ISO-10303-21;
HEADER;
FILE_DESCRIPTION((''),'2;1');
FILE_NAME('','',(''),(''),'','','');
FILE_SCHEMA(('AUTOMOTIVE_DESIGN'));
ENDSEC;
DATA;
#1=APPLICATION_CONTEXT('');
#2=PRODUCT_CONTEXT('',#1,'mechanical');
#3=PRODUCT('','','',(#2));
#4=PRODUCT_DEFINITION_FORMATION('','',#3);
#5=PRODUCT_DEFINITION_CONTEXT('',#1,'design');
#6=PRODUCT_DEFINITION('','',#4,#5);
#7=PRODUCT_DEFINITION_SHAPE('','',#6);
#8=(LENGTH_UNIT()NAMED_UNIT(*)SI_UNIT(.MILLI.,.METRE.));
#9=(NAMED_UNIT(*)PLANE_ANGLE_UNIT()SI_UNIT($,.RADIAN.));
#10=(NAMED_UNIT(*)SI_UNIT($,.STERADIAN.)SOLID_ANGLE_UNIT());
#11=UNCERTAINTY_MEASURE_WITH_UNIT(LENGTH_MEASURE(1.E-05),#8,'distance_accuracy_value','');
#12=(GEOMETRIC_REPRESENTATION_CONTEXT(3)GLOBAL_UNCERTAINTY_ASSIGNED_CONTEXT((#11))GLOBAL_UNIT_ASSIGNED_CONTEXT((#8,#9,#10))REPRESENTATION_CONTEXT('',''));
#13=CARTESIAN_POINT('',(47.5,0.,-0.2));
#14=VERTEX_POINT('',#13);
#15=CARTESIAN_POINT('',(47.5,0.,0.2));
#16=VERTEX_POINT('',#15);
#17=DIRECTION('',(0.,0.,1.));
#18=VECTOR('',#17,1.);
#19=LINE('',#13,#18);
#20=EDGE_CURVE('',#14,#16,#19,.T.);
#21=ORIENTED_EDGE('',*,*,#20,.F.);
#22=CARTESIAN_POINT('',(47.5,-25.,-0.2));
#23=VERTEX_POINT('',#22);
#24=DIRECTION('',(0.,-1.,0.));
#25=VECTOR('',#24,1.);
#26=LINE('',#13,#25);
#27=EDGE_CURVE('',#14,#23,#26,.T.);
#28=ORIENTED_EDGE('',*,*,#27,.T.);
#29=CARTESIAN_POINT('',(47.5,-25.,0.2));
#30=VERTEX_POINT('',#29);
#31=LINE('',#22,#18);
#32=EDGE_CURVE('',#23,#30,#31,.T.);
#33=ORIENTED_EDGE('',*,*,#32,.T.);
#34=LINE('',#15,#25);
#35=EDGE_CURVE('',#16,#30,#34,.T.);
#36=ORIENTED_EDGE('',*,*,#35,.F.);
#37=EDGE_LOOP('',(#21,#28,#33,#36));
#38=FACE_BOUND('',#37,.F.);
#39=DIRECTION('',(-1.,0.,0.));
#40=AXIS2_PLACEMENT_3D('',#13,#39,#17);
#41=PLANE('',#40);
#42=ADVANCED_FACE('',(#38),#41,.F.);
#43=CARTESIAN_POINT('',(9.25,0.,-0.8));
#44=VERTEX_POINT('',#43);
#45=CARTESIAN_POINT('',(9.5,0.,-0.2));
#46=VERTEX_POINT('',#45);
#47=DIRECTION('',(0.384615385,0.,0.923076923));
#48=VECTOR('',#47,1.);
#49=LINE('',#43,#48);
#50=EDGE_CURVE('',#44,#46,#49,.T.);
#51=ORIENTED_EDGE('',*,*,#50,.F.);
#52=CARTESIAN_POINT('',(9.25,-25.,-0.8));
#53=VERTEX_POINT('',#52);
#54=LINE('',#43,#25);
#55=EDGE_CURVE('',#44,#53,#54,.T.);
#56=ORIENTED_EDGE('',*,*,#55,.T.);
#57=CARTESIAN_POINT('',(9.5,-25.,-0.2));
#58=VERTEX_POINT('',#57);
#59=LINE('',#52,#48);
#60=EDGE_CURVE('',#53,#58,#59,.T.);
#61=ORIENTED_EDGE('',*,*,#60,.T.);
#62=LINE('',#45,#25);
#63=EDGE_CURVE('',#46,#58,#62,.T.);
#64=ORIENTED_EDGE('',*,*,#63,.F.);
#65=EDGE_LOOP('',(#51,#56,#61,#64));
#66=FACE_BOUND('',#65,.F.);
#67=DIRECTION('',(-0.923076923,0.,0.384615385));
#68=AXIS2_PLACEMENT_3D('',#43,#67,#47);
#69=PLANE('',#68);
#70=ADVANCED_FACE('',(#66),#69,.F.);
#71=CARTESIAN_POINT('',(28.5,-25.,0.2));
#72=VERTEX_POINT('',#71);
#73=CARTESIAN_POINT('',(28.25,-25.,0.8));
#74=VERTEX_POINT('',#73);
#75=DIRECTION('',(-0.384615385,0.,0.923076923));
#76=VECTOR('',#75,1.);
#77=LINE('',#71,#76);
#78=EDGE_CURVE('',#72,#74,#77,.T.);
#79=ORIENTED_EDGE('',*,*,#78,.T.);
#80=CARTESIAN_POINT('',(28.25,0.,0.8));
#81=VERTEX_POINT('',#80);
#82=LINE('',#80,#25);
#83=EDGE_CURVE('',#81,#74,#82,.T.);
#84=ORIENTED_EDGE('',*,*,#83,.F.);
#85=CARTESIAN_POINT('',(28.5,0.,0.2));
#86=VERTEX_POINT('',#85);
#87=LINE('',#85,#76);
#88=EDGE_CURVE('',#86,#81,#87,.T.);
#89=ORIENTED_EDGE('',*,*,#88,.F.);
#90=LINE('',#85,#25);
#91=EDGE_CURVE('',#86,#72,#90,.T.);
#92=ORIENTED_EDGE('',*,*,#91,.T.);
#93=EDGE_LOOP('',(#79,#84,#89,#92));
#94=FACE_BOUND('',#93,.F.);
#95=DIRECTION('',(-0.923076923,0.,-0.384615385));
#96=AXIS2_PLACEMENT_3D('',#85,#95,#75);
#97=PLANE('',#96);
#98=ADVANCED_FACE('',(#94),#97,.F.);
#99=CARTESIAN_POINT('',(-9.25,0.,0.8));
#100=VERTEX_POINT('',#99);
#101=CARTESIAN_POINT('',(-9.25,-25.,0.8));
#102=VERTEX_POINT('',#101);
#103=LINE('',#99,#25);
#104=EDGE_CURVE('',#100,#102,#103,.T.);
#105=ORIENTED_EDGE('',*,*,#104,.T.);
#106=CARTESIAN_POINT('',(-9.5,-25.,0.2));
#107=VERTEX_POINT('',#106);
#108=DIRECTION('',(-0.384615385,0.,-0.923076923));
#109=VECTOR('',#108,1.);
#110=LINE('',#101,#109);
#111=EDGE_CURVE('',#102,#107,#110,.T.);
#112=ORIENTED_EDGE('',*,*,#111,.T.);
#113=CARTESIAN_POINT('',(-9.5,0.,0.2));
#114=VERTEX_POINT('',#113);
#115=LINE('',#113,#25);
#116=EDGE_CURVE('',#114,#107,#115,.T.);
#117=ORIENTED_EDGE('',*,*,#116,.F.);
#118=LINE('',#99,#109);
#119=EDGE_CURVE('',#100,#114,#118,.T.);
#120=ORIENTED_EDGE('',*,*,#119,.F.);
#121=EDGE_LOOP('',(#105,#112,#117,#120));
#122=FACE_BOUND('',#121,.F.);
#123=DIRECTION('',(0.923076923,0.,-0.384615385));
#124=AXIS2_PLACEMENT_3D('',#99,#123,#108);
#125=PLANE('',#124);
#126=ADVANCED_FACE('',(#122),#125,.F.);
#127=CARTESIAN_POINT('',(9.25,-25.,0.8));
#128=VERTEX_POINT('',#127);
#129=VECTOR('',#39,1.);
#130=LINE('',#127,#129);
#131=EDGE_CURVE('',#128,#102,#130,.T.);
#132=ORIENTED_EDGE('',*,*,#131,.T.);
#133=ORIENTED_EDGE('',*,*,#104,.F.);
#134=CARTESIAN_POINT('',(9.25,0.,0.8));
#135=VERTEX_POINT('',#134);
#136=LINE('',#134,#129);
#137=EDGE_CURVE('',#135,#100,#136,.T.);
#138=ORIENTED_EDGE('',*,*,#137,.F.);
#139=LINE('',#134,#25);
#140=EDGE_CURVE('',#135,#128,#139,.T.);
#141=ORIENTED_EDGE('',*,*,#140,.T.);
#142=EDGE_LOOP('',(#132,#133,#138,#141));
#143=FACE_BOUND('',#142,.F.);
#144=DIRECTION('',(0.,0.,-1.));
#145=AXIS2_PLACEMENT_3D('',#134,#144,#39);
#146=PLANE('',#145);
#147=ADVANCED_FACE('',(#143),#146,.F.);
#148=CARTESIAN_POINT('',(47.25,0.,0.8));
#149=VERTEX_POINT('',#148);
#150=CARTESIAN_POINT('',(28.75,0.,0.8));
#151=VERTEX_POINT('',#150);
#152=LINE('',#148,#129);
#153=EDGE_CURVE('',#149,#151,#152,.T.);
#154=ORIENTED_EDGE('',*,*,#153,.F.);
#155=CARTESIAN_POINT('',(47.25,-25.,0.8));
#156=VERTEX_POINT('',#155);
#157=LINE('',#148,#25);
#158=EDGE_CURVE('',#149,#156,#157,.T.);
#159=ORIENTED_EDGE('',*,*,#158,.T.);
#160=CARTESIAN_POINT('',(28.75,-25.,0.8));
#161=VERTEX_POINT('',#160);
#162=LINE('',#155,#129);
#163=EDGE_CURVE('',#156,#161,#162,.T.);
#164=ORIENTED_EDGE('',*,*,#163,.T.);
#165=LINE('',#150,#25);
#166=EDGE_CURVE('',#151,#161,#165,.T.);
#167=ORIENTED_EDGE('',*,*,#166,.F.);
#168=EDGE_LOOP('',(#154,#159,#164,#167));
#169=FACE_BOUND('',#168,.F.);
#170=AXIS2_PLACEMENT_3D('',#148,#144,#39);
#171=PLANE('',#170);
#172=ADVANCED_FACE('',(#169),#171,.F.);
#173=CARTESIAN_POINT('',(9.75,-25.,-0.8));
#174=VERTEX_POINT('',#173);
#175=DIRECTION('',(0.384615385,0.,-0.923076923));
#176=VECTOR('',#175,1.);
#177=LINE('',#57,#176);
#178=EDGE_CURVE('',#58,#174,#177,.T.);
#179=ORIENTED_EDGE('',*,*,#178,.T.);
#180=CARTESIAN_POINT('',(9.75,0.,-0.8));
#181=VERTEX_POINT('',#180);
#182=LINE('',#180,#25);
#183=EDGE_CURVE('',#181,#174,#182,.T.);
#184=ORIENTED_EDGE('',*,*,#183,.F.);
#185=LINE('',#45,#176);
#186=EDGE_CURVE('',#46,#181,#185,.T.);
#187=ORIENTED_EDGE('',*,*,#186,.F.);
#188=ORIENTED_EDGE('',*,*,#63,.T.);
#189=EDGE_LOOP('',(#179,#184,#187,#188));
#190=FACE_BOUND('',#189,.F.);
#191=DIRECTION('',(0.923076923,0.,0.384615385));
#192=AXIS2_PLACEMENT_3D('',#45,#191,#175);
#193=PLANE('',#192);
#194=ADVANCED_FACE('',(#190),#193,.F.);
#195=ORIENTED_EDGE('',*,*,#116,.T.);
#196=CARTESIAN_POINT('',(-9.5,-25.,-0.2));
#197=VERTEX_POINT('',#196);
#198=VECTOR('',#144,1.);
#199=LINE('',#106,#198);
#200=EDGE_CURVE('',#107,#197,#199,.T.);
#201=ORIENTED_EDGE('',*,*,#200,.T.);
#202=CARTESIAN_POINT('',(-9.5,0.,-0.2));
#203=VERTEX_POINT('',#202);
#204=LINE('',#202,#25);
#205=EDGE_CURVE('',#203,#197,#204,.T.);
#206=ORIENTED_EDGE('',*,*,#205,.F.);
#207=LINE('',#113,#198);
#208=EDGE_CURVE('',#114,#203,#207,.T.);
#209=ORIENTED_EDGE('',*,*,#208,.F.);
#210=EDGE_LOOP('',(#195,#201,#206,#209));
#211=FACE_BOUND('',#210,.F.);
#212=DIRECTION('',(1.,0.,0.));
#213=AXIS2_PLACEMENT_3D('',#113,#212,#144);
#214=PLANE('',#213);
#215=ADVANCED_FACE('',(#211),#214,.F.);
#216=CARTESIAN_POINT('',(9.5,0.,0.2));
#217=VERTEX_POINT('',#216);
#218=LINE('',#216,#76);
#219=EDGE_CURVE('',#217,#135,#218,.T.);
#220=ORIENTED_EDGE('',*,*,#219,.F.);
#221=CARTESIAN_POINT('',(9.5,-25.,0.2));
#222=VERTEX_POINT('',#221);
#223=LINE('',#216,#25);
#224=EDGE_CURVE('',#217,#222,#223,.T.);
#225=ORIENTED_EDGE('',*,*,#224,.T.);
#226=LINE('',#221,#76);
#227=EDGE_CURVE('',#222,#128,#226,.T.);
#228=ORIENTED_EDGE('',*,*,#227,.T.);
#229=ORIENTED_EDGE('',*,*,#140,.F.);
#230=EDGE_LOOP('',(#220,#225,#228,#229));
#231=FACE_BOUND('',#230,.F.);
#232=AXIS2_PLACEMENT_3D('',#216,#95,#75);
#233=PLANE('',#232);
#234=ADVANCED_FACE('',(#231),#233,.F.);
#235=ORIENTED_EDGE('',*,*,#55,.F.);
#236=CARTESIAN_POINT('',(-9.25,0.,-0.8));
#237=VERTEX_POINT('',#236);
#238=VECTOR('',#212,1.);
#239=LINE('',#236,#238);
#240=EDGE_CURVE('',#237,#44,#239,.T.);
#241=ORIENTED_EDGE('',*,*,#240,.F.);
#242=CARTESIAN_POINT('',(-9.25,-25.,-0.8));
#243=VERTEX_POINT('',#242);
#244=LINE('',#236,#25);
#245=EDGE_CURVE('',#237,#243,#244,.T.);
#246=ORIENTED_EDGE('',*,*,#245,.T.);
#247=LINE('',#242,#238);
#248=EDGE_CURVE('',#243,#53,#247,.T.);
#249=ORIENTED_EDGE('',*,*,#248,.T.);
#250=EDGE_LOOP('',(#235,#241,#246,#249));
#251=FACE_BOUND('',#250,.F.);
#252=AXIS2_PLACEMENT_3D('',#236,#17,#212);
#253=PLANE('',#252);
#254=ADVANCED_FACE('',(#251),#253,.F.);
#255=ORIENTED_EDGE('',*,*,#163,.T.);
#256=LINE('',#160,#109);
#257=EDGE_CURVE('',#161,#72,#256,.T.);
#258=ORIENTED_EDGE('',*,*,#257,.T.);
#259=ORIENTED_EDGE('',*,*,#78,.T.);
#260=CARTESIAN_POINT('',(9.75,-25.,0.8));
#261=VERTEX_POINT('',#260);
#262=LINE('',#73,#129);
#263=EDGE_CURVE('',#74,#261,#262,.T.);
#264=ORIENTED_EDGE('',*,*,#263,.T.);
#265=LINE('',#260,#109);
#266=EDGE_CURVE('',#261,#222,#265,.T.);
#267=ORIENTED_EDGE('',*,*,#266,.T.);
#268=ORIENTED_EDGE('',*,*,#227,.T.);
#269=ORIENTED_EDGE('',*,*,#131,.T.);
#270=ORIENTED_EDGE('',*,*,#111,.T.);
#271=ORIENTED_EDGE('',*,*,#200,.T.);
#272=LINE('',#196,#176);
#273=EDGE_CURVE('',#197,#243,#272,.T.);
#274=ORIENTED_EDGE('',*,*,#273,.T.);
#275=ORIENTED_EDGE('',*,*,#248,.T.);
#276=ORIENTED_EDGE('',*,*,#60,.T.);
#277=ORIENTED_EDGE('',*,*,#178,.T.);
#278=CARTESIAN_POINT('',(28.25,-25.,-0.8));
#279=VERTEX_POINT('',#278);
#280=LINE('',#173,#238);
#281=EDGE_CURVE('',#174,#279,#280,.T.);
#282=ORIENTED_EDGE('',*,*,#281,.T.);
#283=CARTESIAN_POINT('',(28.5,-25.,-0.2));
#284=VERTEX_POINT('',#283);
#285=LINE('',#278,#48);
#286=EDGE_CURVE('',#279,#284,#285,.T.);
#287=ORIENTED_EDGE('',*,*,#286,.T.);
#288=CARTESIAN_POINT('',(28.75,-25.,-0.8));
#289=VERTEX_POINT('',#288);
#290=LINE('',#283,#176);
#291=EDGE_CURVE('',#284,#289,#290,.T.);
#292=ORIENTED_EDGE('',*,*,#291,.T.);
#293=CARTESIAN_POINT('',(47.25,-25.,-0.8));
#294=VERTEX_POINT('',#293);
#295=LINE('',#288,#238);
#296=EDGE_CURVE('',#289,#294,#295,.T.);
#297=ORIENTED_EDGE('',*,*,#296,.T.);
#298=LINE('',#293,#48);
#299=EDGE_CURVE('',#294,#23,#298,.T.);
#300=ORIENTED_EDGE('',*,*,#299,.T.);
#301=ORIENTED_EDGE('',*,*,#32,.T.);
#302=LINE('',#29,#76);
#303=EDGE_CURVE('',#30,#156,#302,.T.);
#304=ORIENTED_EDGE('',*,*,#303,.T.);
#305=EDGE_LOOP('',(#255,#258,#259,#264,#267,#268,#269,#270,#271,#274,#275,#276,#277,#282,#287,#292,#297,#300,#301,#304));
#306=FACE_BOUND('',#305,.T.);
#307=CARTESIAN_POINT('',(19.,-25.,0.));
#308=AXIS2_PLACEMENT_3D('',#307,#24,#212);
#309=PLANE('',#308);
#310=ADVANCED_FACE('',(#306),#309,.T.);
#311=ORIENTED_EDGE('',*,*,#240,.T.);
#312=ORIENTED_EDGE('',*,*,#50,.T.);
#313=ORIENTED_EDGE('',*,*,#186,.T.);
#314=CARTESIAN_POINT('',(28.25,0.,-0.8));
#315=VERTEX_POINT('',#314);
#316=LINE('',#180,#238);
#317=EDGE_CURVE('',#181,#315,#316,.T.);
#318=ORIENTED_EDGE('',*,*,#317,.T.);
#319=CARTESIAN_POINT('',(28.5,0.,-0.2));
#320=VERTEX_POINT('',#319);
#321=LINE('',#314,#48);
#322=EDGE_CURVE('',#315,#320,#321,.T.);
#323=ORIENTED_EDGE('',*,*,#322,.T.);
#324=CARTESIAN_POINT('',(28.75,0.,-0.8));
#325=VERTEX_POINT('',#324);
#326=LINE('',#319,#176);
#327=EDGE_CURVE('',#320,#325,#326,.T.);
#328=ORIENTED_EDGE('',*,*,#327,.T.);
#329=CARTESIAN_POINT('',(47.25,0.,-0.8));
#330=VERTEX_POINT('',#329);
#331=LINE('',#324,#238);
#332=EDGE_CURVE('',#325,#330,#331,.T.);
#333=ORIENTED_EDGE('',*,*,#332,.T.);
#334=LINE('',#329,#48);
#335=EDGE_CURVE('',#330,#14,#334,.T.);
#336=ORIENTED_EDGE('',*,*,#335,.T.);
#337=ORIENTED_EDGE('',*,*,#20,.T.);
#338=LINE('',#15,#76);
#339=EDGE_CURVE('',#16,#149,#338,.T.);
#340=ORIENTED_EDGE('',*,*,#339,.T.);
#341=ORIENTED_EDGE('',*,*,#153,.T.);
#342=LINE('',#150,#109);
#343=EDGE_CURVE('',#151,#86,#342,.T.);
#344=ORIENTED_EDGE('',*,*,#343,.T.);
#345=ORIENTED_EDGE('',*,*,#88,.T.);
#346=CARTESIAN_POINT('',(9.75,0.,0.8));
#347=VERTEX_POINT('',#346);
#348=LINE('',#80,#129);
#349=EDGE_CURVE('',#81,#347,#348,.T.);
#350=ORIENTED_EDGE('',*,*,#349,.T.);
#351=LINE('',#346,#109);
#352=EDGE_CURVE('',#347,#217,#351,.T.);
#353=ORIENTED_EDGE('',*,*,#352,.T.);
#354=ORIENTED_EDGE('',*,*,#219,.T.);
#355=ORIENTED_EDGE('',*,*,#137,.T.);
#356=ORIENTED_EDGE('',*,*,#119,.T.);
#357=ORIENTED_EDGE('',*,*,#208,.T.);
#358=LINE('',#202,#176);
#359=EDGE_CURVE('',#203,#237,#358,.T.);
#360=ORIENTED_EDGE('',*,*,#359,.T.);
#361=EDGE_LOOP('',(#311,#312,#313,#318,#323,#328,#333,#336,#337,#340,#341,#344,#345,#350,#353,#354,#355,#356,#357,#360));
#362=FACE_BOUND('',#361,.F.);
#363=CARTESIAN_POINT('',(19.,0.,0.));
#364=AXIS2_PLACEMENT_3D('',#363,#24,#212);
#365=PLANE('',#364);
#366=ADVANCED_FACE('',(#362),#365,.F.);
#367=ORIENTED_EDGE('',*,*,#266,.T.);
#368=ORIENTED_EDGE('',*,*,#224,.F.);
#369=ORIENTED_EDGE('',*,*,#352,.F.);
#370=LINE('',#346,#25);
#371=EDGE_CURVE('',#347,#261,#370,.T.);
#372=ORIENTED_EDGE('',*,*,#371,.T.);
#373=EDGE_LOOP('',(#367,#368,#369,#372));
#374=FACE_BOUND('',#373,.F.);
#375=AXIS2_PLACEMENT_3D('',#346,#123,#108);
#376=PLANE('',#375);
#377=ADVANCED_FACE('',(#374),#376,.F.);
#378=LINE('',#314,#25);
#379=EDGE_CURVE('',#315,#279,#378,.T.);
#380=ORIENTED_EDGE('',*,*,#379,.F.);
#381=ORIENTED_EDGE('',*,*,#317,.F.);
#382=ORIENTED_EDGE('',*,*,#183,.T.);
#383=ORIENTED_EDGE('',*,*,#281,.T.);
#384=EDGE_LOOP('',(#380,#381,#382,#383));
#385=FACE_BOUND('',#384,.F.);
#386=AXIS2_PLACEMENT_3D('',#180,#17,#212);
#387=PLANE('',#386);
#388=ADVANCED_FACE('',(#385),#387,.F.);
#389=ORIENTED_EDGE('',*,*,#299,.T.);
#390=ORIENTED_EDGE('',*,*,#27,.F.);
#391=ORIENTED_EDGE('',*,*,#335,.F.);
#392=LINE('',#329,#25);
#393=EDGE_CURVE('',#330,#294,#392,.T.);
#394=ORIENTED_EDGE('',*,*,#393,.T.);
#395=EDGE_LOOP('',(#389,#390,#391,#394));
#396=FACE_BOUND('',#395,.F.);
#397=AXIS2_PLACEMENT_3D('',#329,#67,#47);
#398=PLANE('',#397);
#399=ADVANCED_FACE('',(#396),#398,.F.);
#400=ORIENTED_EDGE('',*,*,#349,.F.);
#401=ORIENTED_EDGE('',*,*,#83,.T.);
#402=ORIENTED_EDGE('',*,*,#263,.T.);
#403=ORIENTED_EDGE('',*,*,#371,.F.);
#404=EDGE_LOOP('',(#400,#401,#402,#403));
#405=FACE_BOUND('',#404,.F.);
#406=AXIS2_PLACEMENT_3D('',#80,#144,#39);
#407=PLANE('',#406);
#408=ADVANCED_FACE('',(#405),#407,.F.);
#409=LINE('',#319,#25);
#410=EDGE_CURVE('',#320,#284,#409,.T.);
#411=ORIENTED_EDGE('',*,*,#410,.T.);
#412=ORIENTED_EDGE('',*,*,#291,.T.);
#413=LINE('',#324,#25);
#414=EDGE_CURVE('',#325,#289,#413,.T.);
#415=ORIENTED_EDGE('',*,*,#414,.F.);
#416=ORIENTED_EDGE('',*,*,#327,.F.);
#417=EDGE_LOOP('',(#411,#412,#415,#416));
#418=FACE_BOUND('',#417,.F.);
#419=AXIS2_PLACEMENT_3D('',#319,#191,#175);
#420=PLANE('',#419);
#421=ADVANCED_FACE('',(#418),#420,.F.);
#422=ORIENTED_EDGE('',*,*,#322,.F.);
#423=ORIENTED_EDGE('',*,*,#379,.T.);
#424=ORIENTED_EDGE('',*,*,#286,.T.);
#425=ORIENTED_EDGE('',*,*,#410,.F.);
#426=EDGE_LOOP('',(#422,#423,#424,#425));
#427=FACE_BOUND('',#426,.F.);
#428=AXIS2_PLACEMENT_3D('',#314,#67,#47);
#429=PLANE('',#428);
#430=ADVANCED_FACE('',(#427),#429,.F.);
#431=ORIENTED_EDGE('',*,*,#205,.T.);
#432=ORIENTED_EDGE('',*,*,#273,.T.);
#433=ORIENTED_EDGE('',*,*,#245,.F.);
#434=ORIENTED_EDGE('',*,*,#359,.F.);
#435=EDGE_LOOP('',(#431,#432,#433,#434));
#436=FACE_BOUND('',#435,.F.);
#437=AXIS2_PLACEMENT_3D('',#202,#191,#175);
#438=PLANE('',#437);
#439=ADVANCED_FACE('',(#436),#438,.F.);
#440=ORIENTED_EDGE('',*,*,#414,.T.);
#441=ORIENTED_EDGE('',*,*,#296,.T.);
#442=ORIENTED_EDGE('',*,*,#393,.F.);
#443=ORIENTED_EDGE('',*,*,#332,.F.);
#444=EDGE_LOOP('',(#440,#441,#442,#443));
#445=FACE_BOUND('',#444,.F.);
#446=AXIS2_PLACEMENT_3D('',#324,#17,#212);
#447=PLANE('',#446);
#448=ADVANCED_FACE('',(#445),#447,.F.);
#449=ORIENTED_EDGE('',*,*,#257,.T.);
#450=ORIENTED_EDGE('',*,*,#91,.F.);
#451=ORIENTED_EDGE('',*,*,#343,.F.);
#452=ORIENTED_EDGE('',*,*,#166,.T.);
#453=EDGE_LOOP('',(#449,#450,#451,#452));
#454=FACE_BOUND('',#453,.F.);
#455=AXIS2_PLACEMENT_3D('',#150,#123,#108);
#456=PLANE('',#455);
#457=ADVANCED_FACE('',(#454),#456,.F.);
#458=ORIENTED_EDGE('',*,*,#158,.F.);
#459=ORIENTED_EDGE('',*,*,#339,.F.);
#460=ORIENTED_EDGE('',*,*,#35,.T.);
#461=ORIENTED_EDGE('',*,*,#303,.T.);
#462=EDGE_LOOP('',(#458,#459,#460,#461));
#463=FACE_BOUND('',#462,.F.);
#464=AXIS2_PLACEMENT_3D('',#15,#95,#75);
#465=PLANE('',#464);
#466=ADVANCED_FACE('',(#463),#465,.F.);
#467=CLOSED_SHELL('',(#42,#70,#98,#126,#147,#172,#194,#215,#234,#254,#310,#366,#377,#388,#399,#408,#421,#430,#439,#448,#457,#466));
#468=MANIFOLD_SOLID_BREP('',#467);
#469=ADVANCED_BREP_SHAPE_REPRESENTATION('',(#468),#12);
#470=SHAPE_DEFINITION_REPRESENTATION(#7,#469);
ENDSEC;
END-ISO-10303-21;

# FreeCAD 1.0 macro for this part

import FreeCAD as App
import Part
import Sketcher
from FreeCAD import Vector
Q = App.Units.Quantity

doc = App.newDocument("Part")
body = doc.addObject("PartDesign::Body", "Body")

# Sketch on XZ plane
sketch1 = body.newObject("Sketcher::SketchObject", "Sketch")
sketch1.AttachmentSupport = (doc.getObject("XZ_Plane"), [""])
sketch1.MapMode = "FlatFace"
sketch1.addGeometry([
    Part.LineSegment(Vector(9.25, 0.8, 0), Vector(-9.25, 0.8, 0)),  # 0
    Part.LineSegment(Vector(-9.25, 0.8, 0), Vector(-9.5, 0.2, 0)),  # 1
    Part.LineSegment(Vector(-9.5, 0.2, 0), Vector(-9.5, -0.2, 0)),  # 2
    Part.LineSegment(Vector(-9.5, -0.2, 0), Vector(-9.25, -0.8, 0)),  # 3
    Part.LineSegment(Vector(-9.25, -0.8, 0), Vector(9.25, -0.8, 0)),  # 4
    Part.LineSegment(Vector(9.25, -0.8, 0), Vector(9.5, -0.2, 0)),  # 5
    Part.LineSegment(Vector(9.5, -0.2, 0), Vector(9.75, -0.8, 0)),  # 6
    Part.LineSegment(Vector(9.75, -0.8, 0), Vector(28.25, -0.8, 0)),  # 7
    Part.LineSegment(Vector(28.25, -0.8, 0), Vector(28.5, -0.2, 0)),  # 8
    Part.LineSegment(Vector(28.5, -0.2, 0), Vector(28.75, -0.8, 0)),  # 9
    Part.LineSegment(Vector(28.75, -0.8, 0), Vector(47.25, -0.8, 0)),  # 10
    Part.LineSegment(Vector(47.25, -0.8, 0), Vector(47.5, -0.2, 0)),  # 11
    Part.LineSegment(Vector(47.5, -0.2, 0), Vector(47.5, 0.2, 0)),  # 12
    Part.LineSegment(Vector(47.5, 0.2, 0), Vector(47.25, 0.8, 0)),  # 13
    Part.LineSegment(Vector(47.25, 0.8, 0), Vector(28.75, 0.8, 0)),  # 14
    Part.LineSegment(Vector(28.75, 0.8, 0), Vector(28.5, 0.2, 0)),  # 15
    Part.LineSegment(Vector(28.5, 0.2, 0), Vector(28.25, 0.8, 0)),  # 16
    Part.LineSegment(Vector(28.25, 0.8, 0), Vector(9.75, 0.8, 0)),  # 17
    Part.LineSegment(Vector(9.75, 0.8, 0), Vector(9.5, 0.2, 0)),  # 18
    Part.LineSegment(Vector(9.5, 0.2, 0), Vector(9.25, 0.8, 0)),  # 19
], False)
sketch1.addConstraint([
    Sketcher.Constraint("Coincident", 0, 2, 1, 1),
    Sketcher.Constraint("Coincident", 1, 2, 2, 1),
    Sketcher.Constraint("Coincident", 2, 2, 3, 1),
    Sketcher.Constraint("Coincident", 3, 2, 4, 1),
    Sketcher.Constraint("Coincident", 4, 2, 5, 1),
    Sketcher.Constraint("Coincident", 5, 2, 6, 1),
    Sketcher.Constraint("Coincident", 6, 2, 7, 1),
    Sketcher.Constraint("Coincident", 7, 2, 8, 1),
    Sketcher.Constraint("Coincident", 8, 2, 9, 1),
    Sketcher.Constraint("Coincident", 9, 2, 10, 1),
    Sketcher.Constraint("Coincident", 10, 2, 11, 1),
    Sketcher.Constraint("Coincident", 11, 2, 12, 1),
    Sketcher.Constraint("Coincident", 12, 2, 13, 1),
    Sketcher.Constraint("Coincident", 13, 2, 14, 1),
    Sketcher.Constraint("Coincident", 14, 2, 15, 1),
    Sketcher.Constraint("Coincident", 15, 2, 16, 1),
    Sketcher.Constraint("Coincident", 16, 2, 17, 1),
    Sketcher.Constraint("Coincident", 17, 2, 18, 1),
    Sketcher.Constraint("Coincident", 18, 2, 19, 1),
    Sketcher.Constraint("Coincident", 19, 2, 0, 1),
    Sketcher.Constraint("Horizontal", 0),
    Sketcher.Constraint("Vertical", 2),
    Sketcher.Constraint("Horizontal", 4),
    Sketcher.Constraint("Horizontal", 7),
    Sketcher.Constraint("Horizontal", 10),
    Sketcher.Constraint("Vertical", 12),
    Sketcher.Constraint("Horizontal", 14),
    Sketcher.Constraint("Horizontal", 17),
    Sketcher.Constraint("Symmetric", 0, 2, 4, 2, -1, 1),
    Sketcher.Constraint("Symmetric", 1, 2, 5, 2, -1, 1),
    Sketcher.Constraint("Symmetric", 2, 2, 18, 2, -1, 1),
    Sketcher.Constraint("Symmetric", 10, 2, 13, 2, -1),
    Sketcher.Constraint("Symmetric", 8, 2, 15, 2, -1),
    Sketcher.Constraint("Symmetric", 7, 2, 16, 2, -1),
    Sketcher.Constraint("Parallel", 3, 6),
    Sketcher.Constraint("Parallel", 5, 8),
    Sketcher.Constraint("Parallel", 6, 9),
    Sketcher.Constraint("Parallel", 8, 11),
    Sketcher.Constraint("Parallel", 9, 13),
    Sketcher.Constraint("Parallel", 11, 15),
    Sketcher.Constraint("Parallel", 13, 16),
    Sketcher.Constraint("Parallel", 15, 18),
    Sketcher.Constraint("Parallel", 16, 19),
    Sketcher.Constraint("Horizontal", 2, 2, 5, 2),
    Sketcher.Constraint("Horizontal", 4, 2, 6, 2),
    Sketcher.Constraint("Horizontal", 5, 2, 8, 2),
    Sketcher.Constraint("Horizontal", 7, 2, 9, 2),
    Sketcher.Constraint("Horizontal", 8, 2, 11, 2),
    Sketcher.Constraint("Equal", 4, 7),
    Sketcher.Constraint("Equal", 7, 10),
    Sketcher.Constraint("DistanceX", 0, 2, 0, 1, Q("18.5 mm")),
    Sketcher.Constraint("DistanceY", 2, 2, 2, 1, Q("0.4 mm")),
    Sketcher.Constraint("DistanceY", 2, 2, 0, 2, Q("1 mm")),
    Sketcher.Constraint("DistanceX", 2, 2, 5, 2, Q("19 mm")),
])
pad1 = body.newObject("PartDesign::Pad", "Pad")
pad1.Profile = sketch1
pad1.Length = 25

doc.recompute()
